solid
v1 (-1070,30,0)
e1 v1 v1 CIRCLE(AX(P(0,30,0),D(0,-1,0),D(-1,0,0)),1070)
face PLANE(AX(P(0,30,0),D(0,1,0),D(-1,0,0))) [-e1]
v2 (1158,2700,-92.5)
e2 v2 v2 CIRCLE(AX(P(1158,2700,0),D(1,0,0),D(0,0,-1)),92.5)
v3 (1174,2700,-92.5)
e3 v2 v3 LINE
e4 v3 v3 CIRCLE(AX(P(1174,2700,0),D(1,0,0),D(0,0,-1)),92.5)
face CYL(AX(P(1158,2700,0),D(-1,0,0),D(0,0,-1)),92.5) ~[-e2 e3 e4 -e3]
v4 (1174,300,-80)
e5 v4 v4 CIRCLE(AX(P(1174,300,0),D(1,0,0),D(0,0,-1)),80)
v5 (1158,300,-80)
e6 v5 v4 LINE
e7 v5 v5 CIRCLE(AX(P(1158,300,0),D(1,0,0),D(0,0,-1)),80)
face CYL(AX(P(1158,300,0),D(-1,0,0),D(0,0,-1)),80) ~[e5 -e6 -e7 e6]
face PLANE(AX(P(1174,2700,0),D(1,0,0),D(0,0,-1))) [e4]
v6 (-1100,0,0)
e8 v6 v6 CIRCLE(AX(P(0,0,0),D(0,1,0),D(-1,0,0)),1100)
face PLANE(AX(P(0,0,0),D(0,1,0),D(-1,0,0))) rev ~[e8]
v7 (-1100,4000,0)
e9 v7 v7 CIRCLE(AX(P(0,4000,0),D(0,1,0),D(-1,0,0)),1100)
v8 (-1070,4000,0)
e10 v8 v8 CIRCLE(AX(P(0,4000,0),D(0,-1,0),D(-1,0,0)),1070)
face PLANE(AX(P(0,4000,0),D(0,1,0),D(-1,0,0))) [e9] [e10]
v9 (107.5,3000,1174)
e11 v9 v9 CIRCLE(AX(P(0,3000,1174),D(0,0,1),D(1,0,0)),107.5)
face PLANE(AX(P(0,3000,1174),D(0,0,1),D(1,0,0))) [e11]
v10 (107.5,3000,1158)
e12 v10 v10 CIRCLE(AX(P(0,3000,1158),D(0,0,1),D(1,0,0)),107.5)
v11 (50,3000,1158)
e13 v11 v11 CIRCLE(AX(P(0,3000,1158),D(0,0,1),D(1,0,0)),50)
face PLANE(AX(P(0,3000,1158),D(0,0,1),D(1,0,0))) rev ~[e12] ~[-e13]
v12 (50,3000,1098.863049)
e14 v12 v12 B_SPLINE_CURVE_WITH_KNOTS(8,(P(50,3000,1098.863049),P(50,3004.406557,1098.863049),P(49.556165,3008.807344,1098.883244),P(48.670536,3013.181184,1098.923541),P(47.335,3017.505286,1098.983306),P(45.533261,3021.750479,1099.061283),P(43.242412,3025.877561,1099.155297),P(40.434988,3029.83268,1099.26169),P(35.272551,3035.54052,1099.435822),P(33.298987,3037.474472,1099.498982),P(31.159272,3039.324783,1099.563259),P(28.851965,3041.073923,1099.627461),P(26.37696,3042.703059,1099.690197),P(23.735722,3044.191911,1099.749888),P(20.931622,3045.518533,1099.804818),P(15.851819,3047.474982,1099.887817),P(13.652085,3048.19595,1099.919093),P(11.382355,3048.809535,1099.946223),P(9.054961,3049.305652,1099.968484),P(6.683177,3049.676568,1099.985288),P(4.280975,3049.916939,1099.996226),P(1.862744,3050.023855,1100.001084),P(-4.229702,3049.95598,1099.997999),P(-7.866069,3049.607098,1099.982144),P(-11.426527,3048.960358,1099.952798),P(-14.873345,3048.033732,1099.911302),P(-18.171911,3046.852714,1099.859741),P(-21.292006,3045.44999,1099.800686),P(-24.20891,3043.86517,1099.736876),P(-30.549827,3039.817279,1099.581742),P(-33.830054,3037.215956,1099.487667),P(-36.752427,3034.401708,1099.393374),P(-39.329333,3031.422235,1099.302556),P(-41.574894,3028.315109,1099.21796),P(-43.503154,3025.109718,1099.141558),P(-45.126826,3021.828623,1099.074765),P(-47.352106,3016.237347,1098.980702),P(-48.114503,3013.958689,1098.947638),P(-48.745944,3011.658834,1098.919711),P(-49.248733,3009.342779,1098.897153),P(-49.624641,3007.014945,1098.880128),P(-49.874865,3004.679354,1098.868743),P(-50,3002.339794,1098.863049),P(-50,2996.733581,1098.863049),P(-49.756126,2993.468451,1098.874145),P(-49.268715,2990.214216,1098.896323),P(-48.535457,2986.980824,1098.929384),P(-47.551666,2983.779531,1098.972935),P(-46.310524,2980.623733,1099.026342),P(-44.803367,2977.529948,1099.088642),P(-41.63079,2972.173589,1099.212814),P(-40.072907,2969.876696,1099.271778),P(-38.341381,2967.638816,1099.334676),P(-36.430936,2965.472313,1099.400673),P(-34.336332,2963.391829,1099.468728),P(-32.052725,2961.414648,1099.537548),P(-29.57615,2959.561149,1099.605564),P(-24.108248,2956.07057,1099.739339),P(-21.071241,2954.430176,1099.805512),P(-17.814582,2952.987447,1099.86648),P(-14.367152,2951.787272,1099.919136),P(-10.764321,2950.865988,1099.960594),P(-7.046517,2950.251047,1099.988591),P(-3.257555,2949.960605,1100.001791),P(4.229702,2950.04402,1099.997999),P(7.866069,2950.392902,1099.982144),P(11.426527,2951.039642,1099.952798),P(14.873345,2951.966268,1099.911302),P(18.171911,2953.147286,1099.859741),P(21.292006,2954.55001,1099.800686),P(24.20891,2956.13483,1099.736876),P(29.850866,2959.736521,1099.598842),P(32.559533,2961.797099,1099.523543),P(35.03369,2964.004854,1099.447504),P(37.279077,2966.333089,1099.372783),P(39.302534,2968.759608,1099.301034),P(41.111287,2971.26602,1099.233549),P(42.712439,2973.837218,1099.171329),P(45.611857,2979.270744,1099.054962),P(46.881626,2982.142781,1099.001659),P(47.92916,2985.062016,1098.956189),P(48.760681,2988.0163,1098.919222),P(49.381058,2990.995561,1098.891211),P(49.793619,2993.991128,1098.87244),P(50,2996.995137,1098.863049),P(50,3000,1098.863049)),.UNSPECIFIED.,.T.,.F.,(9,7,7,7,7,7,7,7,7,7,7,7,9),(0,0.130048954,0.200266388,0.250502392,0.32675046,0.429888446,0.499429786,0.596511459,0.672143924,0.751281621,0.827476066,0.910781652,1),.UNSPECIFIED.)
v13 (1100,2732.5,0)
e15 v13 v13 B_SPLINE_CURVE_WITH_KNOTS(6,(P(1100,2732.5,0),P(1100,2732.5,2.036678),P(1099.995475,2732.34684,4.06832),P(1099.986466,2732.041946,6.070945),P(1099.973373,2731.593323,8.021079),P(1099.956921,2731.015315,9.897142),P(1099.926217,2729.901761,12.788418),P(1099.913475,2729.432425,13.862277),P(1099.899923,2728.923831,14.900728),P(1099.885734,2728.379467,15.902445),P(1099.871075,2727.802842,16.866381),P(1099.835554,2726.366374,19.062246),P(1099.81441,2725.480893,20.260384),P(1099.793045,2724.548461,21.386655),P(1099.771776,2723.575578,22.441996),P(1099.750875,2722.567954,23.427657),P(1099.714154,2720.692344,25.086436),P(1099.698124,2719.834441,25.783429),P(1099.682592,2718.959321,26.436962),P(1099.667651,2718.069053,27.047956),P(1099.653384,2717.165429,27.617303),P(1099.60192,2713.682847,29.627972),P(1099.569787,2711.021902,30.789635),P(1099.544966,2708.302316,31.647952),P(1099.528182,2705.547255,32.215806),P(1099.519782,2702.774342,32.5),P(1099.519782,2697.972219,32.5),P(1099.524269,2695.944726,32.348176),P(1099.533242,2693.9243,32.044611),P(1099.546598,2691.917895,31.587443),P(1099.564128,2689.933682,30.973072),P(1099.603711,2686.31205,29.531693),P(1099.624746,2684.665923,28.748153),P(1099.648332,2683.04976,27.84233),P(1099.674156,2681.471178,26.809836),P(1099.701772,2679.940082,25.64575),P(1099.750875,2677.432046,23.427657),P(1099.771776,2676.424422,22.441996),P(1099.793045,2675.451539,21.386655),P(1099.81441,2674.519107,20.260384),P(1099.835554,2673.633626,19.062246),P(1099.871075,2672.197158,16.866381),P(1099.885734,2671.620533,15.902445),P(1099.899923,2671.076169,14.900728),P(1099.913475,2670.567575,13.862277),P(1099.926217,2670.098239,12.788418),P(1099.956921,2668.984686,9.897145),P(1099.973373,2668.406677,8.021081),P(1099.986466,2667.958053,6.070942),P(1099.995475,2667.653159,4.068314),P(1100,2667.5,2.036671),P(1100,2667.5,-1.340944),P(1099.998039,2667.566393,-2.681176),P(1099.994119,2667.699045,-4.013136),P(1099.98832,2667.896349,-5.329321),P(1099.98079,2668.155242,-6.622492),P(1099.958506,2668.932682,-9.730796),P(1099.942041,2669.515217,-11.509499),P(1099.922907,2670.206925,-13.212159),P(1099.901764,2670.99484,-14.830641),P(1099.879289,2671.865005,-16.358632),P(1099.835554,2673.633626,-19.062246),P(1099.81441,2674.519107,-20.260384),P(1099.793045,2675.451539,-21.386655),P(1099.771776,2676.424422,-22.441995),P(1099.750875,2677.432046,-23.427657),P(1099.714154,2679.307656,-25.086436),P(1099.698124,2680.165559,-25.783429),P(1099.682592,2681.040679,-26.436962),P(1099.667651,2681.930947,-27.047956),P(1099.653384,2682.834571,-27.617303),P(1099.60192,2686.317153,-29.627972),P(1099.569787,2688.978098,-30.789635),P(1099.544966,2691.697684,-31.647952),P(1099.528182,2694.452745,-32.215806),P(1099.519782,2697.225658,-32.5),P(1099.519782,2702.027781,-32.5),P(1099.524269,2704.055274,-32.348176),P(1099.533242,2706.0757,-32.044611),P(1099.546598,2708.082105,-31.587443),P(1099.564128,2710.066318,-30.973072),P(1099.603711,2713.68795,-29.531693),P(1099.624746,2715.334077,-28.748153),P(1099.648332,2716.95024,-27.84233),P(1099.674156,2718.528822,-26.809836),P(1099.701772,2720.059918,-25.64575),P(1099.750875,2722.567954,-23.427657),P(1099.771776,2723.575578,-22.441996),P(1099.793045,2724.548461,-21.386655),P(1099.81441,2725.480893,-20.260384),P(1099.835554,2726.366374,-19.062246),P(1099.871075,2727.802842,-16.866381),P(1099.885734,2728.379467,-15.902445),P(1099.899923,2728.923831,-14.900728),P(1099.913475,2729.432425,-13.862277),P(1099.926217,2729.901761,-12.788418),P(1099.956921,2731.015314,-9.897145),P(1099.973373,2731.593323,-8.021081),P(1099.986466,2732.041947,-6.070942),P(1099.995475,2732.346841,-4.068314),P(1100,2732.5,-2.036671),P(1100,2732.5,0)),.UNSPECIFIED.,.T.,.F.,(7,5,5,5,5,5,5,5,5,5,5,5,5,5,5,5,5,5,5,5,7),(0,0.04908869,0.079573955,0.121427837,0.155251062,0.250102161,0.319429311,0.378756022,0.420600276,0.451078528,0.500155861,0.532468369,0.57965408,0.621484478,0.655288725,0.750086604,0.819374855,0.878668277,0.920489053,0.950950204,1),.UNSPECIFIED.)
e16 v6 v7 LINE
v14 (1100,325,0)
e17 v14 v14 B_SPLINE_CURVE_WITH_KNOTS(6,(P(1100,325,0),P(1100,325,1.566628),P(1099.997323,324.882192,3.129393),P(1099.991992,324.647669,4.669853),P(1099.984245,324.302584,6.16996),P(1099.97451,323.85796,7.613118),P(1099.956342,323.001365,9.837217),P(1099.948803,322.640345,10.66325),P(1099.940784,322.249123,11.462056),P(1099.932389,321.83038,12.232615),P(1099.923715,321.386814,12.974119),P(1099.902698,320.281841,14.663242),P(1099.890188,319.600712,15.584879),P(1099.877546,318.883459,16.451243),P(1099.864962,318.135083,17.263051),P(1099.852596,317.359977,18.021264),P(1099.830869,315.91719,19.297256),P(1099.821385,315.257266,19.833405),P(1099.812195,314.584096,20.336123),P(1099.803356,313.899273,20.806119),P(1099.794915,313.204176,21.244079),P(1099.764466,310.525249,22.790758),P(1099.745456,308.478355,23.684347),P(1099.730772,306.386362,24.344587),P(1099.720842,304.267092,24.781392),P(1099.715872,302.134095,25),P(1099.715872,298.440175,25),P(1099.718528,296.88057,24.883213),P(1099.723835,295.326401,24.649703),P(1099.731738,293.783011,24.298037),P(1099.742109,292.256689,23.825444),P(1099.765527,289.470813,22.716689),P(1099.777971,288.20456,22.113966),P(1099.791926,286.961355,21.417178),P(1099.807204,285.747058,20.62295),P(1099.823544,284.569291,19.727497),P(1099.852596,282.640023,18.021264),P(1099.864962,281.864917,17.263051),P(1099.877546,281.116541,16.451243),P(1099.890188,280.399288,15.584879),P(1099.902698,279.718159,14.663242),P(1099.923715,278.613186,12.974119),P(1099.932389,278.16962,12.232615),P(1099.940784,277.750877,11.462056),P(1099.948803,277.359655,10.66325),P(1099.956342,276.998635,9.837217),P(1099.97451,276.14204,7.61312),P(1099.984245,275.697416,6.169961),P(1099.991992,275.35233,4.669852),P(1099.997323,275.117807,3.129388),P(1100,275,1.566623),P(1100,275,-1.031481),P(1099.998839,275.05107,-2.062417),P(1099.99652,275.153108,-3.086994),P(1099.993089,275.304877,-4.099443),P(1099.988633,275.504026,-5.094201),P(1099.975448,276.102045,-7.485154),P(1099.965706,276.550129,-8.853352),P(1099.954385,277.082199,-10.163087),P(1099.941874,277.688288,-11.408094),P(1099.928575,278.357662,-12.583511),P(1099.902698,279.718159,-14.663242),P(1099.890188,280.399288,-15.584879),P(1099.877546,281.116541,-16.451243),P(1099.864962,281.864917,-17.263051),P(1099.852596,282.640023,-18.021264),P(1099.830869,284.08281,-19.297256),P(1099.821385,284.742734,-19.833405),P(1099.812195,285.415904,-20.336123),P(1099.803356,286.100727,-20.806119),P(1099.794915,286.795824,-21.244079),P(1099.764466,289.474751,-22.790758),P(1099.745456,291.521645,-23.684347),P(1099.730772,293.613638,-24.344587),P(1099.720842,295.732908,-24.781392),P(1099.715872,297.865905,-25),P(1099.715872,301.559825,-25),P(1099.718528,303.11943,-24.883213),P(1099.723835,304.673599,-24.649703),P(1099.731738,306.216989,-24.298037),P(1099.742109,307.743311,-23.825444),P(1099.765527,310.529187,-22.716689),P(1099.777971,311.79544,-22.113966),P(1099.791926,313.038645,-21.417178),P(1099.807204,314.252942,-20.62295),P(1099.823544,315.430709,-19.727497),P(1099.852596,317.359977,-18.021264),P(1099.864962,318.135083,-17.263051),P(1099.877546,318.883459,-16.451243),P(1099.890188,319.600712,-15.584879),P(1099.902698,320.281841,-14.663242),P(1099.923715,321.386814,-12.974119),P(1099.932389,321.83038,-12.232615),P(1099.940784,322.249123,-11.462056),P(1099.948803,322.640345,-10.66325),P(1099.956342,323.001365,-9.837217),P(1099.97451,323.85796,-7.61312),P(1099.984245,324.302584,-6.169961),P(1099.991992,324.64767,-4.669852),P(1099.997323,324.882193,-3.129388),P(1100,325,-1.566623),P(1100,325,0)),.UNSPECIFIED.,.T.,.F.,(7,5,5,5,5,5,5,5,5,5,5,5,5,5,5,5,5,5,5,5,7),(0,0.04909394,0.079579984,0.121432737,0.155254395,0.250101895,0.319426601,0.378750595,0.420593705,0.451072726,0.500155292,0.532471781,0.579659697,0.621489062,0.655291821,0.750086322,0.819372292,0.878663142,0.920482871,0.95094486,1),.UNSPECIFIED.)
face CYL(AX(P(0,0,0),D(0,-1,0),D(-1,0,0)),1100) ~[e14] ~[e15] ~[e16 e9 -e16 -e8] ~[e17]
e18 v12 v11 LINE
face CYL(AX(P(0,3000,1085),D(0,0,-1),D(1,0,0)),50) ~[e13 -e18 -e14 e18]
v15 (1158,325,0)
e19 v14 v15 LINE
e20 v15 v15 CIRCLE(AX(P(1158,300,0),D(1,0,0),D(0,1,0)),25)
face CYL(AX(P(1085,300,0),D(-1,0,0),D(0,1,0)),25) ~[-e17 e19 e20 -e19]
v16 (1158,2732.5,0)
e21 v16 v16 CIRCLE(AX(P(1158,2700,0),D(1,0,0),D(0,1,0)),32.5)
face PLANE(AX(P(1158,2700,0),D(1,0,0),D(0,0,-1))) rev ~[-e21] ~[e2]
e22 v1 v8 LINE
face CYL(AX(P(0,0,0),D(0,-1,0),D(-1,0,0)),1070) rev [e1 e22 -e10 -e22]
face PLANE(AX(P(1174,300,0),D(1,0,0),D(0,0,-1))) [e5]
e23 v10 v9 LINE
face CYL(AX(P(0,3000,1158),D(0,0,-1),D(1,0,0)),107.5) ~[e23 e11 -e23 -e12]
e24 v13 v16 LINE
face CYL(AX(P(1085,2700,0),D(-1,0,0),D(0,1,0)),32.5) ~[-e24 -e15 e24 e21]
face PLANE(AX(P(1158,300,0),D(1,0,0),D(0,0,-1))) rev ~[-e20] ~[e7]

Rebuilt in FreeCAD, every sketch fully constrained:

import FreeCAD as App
import Part
import Sketcher
from FreeCAD import Vector


def faces_at(feature, points):
    """Names of the faces that lie closest to the given points."""
    faces = feature.Shape.Faces
    near = lambda p: min(range(len(faces)), key=lambda i: faces[i].distToShape(Part.Vertex(*p))[0])
    return sorted({f"Face{near(p) + 1}" for p in points})

doc = App.newDocument("Part")
body = doc.addObject("PartDesign::Body", "Body")

# Sketch on XZ plane
sketch1 = body.newObject("Sketcher::SketchObject", "Sketch")
sketch1.AttachmentSupport = (doc.getObject("XZ_Plane"), [""])
sketch1.MapMode = "FlatFace"
sketch1.addGeometry(Part.Circle(Vector(0, 0, 0), Vector(0, 0, 1), 1100), False)
sketch1.addConstraint([
    Sketcher.Constraint("Coincident", 0, 3, -1, 1),
    Sketcher.Constraint("Diameter", 0, 2200.0),
])
pad1 = body.newObject("PartDesign::Pad", "Pad")
pad1.Profile = sketch1
pad1.Length = 4000
pad1.Reversed = True
doc.recompute()

thickness = body.newObject("PartDesign::Thickness", "Thickness")
thickness.Base = (pad1, faces_at(pad1, [(308.798, 4000, -93.611)]))
thickness.Value = 30
thickness.Reversed = True
thickness.Join = "Intersection"

# Sketch on XY plane
sketch2 = body.newObject("Sketcher::SketchObject", "Sketch001")
sketch2.AttachmentSupport = (doc.getObject("XY_Plane"), [""])
sketch2.MapMode = "FlatFace"
sketch2.AttachmentOffset = App.Placement(Vector(0, 0, 1085), App.Rotation())
sketch2.addGeometry(Part.Circle(Vector(0, 3000, 0), Vector(0, 0, 1), 50), False)
sketch2.addConstraint([
    Sketcher.Constraint("PointOnObject", 0, 3, -2),
    Sketcher.Constraint("Diameter", 0, 100.0),
    Sketcher.Constraint("DistanceY", -1, 1, 0, 3, 3000.0),
])
pad2 = body.newObject("PartDesign::Pad", "Pad001")
pad2.Profile = sketch2
pad2.Length = 73

# Sketch on YZ plane
sketch3 = body.newObject("Sketcher::SketchObject", "Sketch002")
sketch3.AttachmentSupport = (doc.getObject("YZ_Plane"), [""])
sketch3.MapMode = "FlatFace"
sketch3.AttachmentOffset = App.Placement(Vector(0, 0, 1085), App.Rotation())
sketch3.addGeometry(Part.Circle(Vector(2700, 0, 0), Vector(0, 0, 1), 32), False)
sketch3.addConstraint([
    Sketcher.Constraint("PointOnObject", 0, 3, -1),
    Sketcher.Constraint("Diameter", 0, 65.0),
    Sketcher.Constraint("DistanceX", -1, 1, 0, 3, 2700.0),
])
pad3 = body.newObject("PartDesign::Pad", "Pad002")
pad3.Profile = sketch3
pad3.Length = 73

# Sketch on YZ plane
sketch4 = body.newObject("Sketcher::SketchObject", "Sketch003")
sketch4.AttachmentSupport = (doc.getObject("YZ_Plane"), [""])
sketch4.MapMode = "FlatFace"
sketch4.AttachmentOffset = App.Placement(Vector(0, 0, 1085), App.Rotation())
sketch4.addGeometry(Part.Circle(Vector(300, 0, 0), Vector(0, 0, 1), 25), False)
sketch4.addConstraint([
    Sketcher.Constraint("PointOnObject", 0, 3, -1),
    Sketcher.Constraint("Diameter", 0, 50.0),
    Sketcher.Constraint("DistanceX", -1, 1, 0, 3, 300.0),
])
pad4 = body.newObject("PartDesign::Pad", "Pad003")
pad4.Profile = sketch4
pad4.Length = 73

# Sketch on XY plane
sketch5 = body.newObject("Sketcher::SketchObject", "Sketch004")
sketch5.AttachmentSupport = (doc.getObject("XY_Plane"), [""])
sketch5.MapMode = "FlatFace"
sketch5.AttachmentOffset = App.Placement(Vector(0, 0, 1158), App.Rotation())
sketch5.addGeometry(Part.Circle(Vector(0, 3000, 0), Vector(0, 0, 1), 108), False)
sketch5.addConstraint([
    Sketcher.Constraint("PointOnObject", 0, 3, -2),
    Sketcher.Constraint("Diameter", 0, 215.0),
    Sketcher.Constraint("DistanceY", -1, 1, 0, 3, 3000.0),
])
pad5 = body.newObject("PartDesign::Pad", "Pad004")
pad5.Profile = sketch5
pad5.Length = 16

# Sketch on YZ plane
sketch6 = body.newObject("Sketcher::SketchObject", "Sketch005")
sketch6.AttachmentSupport = (doc.getObject("YZ_Plane"), [""])
sketch6.MapMode = "FlatFace"
sketch6.AttachmentOffset = App.Placement(Vector(0, 0, 1158), App.Rotation())
sketch6.addGeometry(Part.Circle(Vector(2700, 0, 0), Vector(0, 0, 1), 92), False)
sketch6.addConstraint([
    Sketcher.Constraint("PointOnObject", 0, 3, -1),
    Sketcher.Constraint("Diameter", 0, 185.0),
    Sketcher.Constraint("DistanceX", -1, 1, 0, 3, 2700.0),
])
pad6 = body.newObject("PartDesign::Pad", "Pad005")
pad6.Profile = sketch6
pad6.Length = 16

# Sketch on YZ plane
sketch7 = body.newObject("Sketcher::SketchObject", "Sketch006")
sketch7.AttachmentSupport = (doc.getObject("YZ_Plane"), [""])
sketch7.MapMode = "FlatFace"
sketch7.AttachmentOffset = App.Placement(Vector(0, 0, 1158), App.Rotation())
sketch7.addGeometry(Part.Circle(Vector(300, 0, 0), Vector(0, 0, 1), 80), False)
sketch7.addConstraint([
    Sketcher.Constraint("PointOnObject", 0, 3, -1),
    Sketcher.Constraint("Diameter", 0, 160.0),
    Sketcher.Constraint("DistanceX", -1, 1, 0, 3, 300.0),
])
pad7 = body.newObject("PartDesign::Pad", "Pad006")
pad7.Profile = sketch7
pad7.Length = 16

doc.recompute()
